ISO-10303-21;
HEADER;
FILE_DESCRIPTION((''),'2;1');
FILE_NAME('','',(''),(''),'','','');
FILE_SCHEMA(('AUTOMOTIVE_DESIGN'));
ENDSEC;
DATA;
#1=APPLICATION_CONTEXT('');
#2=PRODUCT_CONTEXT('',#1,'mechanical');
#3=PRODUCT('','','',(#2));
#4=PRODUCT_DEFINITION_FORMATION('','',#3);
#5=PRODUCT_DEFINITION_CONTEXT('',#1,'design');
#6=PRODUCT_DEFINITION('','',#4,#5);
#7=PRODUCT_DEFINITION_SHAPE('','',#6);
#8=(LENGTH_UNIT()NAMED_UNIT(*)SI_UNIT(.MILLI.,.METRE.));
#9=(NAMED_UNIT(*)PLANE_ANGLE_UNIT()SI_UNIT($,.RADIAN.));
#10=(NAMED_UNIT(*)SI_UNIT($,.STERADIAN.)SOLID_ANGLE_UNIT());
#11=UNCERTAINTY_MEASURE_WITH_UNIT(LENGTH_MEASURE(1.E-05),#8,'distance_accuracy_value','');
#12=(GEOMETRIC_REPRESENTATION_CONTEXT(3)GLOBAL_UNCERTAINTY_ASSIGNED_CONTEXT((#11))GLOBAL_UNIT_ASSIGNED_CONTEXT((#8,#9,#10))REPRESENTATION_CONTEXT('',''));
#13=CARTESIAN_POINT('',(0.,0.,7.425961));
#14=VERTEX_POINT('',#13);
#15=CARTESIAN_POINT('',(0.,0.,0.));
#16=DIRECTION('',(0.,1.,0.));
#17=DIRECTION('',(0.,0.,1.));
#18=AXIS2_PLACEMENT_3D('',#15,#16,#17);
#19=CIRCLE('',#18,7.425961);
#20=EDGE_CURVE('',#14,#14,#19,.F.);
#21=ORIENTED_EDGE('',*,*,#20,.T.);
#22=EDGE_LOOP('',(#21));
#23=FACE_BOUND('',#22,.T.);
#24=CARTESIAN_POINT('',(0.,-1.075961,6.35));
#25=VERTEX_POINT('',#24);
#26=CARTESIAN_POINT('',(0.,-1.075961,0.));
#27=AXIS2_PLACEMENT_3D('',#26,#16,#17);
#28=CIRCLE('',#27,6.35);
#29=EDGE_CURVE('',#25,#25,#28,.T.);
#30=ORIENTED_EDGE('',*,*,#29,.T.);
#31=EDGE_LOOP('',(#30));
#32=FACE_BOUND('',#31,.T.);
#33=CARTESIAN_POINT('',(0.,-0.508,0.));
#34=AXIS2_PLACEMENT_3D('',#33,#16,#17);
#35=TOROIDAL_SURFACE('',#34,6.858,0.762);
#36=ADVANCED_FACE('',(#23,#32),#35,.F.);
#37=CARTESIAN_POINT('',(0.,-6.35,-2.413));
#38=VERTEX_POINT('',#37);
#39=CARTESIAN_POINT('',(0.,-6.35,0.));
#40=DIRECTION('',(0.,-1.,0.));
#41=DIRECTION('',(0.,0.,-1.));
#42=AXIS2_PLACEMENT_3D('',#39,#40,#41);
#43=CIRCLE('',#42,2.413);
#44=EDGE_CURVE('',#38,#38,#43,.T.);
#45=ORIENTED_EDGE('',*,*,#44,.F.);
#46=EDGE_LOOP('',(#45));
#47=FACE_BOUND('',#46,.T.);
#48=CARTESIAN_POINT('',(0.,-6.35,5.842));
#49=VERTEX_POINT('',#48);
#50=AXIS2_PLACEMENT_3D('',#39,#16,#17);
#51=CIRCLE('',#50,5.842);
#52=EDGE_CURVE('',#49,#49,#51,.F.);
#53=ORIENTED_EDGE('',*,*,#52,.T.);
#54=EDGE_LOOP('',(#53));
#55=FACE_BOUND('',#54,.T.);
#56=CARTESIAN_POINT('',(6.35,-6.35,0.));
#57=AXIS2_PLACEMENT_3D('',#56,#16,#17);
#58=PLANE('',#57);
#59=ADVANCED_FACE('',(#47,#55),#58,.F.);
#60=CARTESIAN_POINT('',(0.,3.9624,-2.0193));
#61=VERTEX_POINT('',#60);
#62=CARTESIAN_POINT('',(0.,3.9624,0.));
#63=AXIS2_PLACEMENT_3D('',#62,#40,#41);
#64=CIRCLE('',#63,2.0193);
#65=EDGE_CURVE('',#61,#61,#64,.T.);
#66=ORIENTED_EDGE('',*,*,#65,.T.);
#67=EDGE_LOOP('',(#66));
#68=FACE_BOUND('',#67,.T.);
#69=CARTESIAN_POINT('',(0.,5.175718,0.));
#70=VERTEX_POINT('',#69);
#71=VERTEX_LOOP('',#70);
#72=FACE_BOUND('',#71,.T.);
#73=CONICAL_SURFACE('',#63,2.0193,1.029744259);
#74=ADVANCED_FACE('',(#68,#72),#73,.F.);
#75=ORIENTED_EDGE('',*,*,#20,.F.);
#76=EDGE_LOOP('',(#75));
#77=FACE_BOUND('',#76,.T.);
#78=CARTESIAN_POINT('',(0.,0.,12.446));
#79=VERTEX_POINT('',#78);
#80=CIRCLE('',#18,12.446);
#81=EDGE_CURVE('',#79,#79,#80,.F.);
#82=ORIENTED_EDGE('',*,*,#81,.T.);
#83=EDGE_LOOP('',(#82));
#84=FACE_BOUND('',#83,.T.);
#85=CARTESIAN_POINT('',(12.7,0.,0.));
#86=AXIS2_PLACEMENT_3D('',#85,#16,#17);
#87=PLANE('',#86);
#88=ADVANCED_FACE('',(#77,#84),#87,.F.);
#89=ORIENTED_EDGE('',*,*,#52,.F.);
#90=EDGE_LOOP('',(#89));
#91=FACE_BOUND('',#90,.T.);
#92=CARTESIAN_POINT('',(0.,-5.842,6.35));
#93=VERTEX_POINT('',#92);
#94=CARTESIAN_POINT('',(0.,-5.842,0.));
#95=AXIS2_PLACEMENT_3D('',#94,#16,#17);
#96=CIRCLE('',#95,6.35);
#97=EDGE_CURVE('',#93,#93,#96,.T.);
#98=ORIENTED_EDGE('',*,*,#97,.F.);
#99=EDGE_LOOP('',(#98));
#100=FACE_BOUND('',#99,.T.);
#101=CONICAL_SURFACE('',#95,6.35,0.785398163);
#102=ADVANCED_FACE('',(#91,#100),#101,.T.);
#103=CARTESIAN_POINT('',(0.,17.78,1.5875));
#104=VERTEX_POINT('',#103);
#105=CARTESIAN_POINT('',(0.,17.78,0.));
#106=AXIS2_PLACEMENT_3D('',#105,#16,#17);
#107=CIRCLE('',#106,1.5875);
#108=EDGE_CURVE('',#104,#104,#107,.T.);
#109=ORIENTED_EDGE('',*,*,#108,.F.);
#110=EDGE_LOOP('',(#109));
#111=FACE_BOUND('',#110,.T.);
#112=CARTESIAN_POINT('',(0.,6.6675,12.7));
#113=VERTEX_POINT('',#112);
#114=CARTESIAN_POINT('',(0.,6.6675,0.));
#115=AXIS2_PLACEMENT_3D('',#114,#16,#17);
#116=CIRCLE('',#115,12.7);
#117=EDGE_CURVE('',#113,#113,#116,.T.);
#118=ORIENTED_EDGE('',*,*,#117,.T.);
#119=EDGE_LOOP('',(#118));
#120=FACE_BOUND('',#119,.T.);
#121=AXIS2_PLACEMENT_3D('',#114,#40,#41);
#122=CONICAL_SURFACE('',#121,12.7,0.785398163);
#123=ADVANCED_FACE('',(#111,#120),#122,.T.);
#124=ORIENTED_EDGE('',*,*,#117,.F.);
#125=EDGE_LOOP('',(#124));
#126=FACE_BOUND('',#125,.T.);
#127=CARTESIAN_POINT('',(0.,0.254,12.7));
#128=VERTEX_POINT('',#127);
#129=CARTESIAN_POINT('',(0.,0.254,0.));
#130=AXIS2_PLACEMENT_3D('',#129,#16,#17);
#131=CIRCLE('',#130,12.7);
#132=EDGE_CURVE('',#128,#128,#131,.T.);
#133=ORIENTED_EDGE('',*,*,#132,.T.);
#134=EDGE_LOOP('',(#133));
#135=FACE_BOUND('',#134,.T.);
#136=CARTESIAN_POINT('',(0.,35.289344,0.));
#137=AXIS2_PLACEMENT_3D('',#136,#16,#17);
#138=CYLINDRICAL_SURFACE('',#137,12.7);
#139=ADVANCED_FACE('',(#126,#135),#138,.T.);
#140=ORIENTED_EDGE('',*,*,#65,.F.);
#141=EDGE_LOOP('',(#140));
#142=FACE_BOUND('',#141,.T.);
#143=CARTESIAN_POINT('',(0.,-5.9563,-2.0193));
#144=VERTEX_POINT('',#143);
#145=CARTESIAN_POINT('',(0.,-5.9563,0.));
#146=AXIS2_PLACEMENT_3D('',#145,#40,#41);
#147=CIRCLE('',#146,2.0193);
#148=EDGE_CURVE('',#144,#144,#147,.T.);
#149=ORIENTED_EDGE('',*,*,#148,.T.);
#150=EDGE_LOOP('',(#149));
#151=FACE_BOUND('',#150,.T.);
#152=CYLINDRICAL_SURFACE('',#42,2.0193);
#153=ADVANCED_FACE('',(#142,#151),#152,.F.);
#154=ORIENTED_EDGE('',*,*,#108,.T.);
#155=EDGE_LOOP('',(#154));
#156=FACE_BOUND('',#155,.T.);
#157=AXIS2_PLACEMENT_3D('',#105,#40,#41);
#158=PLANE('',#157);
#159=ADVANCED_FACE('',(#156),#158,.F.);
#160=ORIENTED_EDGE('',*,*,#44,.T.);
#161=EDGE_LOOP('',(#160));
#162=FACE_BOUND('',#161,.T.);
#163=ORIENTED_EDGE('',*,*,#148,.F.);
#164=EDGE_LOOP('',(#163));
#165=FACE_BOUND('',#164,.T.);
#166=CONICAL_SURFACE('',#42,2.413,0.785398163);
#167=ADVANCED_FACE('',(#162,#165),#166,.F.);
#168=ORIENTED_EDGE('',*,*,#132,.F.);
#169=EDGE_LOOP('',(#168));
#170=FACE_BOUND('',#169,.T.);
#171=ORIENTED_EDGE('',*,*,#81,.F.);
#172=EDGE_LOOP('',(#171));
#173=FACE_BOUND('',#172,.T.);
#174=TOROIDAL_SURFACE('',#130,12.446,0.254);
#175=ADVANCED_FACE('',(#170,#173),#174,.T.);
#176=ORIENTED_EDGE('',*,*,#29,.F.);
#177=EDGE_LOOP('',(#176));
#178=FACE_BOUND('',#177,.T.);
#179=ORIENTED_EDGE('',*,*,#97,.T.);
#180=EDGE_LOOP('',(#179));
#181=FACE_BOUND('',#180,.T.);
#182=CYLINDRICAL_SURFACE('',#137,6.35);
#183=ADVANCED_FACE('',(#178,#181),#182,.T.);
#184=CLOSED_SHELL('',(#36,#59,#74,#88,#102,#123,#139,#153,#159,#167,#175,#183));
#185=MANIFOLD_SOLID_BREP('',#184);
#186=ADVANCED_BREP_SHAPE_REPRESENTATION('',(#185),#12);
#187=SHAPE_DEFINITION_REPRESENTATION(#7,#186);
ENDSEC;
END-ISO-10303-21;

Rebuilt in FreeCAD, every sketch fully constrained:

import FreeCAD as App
import Part
import Sketcher

V = App.Vector
Q = App.Units.Quantity


def edges_at(feature, points):
    """Names of the edges that pass closest to the given points."""
    edges = feature.Shape.Edges
    near = lambda p: min(range(len(edges)), key=lambda i: edges[i].distToShape(Part.Vertex(*p))[0])
    return sorted({f"Edge{near(p) + 1}" for p in points})


def add_polygon(sketch, points):
    """Adds a closed chain of lines whose ends are joined by coincident constraints."""
    first, n = sketch.GeometryCount, len(points)
    for a, b in zip(points, points[1:] + points[:1]):
        sketch.addGeometry(Part.LineSegment(App.Vector(*a, 0), App.Vector(*b, 0)), False)
    for i in range(n):
        sketch.addConstraint(Sketcher.Constraint("Coincident", first + i, 2, first + (i + 1) % n, 1))

doc = App.newDocument("Part")
body = doc.addObject("PartDesign::Body", "Body")

sketch1 = doc.addObject("Sketcher::SketchObject", "Sketch")
body.addObject(sketch1)
sketch1.AttachmentSupport = (doc.XY_Plane, [""])
sketch1.MapMode = "FlatFace"
add_polygon(sketch1, [(6.35, 0), (12.7, 0), (12.7, 6.6675), (1.5875, 17.78), (0, 17.78), (0, -6.35), (6.35, -6.35)])
sketch1.addConstraint([
    Sketcher.Constraint("Horizontal", 0),
    Sketcher.Constraint("Vertical", 1),
    Sketcher.Constraint("Horizontal", 3),
    Sketcher.Constraint("Vertical", 4),
    Sketcher.Constraint("Horizontal", 5),
    Sketcher.Constraint("Vertical", 6),
    Sketcher.Constraint("PointOnObject", 0, 2, -1),
    Sketcher.Constraint("PointOnObject", 3, 2, -2),
    Sketcher.Constraint("Equal", 0, 5),
    Sketcher.Constraint("Equal", 5, 6),
    Sketcher.Constraint("Angle", 2, Q("135 deg")),
    Sketcher.Constraint("DistanceX", 0, 1, 0, 2, Q("0.25 in")),
    Sketcher.Constraint("DistanceY", 4, 2, 4, 1, Q("0.95 in")),
    Sketcher.Constraint("DistanceX", 3, 2, 3, 1, Q("0.0625 in")),
])
revolution = doc.addObject("PartDesign::Revolution", "Revolution")
body.addObject(revolution)
revolution.Profile = sketch1
revolution.ReferenceAxis = (sketch1, ["V_Axis"])
revolution.Angle = 360

sketch2 = doc.addObject("Sketcher::SketchObject", "Sketch001")
body.addObject(sketch2)
sketch2.AttachmentSupport = (doc.XY_Plane, [""])
sketch2.MapMode = "FlatFace"
sketch2.addGeometry(Part.Circle(V(6.858, -0.508, 0), V(0, 0, 1), 0.762), False)
sketch2.addConstraint([
    Sketcher.Constraint("Diameter", 0, Q("0.06 in")),
    Sketcher.Constraint("DistanceX", -1, 1, 0, 3, Q("0.27 in")),
    Sketcher.Constraint("DistanceY", 0, 3, -1, 1, Q("0.02 in")),
])
groove = doc.addObject("PartDesign::Groove", "Groove")
body.addObject(groove)
groove.Profile = sketch2
groove.ReferenceAxis = (sketch2, ["V_Axis"])
groove.Angle = 360
doc.recompute()

chamfer = doc.addObject("PartDesign::Chamfer", "Chamfer")
body.addObject(chamfer)
chamfer.Base = (groove, edges_at(groove, [(0, -6.35, -6.35)]))
chamfer.Size = Q("0.02 in")
doc.recompute()

fillet = doc.addObject("PartDesign::Fillet", "Fillet")
body.addObject(fillet)
fillet.Base = (chamfer, edges_at(chamfer, [(0, 0, -12.7)]))
fillet.Radius = Q("0.01 in")

sketch3 = doc.addObject("Sketcher::SketchObject", "Sketch002")
body.addObject(sketch3)
sketch3.AttachmentSupport = (doc.XZ_Plane, [""])
sketch3.MapMode = "FlatFace"
sketch3.AttachmentOffset = App.Placement(V(0, 0, 0.25 * 25.4), App.Rotation())
sketch3.addGeometry(Part.Circle(V(0, 0, 0), V(0, 0, 1), 2.0193), False)
sketch3.addConstraint([
    Sketcher.Constraint("Coincident", 0, 3, -1, 1),
    Sketcher.Constraint("Diameter", 0, Q("0.159 in")),
])
doc.recompute()
hole = doc.addObject("PartDesign::Hole", "Hole")
body.addObject(hole)
hole.Profile = sketch3
hole.ThreadType = "None"
hole.Diameter = Q("0.159 in")
hole.DepthType = "Dimension"
hole.Depth = Q("0.406 in")
hole.DrillPoint = "Angled"
hole.DrillPointAngle = 118
hole.HoleCutType = "Countersink"
hole.HoleCutDiameter = Q("0.19 in")
hole.HoleCutCountersinkAngle = 90

doc.recompute()
